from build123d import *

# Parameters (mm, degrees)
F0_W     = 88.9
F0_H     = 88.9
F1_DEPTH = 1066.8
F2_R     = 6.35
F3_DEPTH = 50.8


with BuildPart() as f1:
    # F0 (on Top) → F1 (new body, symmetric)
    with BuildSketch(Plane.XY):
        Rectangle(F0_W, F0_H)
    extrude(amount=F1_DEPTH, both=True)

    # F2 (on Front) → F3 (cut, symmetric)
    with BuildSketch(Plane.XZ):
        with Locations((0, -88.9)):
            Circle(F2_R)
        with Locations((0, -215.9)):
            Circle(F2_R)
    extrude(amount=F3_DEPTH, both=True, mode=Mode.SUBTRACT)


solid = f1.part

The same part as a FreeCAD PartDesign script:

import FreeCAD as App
import Part
import Sketcher

V = App.Vector
Q = App.Units.Quantity

doc = App.newDocument("Part")
params = doc.addObject("Spreadsheet::Sheet", "Params")
for row, (alias, value) in enumerate([
    ("sketch1_width", "3.5 in"),
    ("pad1_length", "84 in"),
    ("sketch2_diameter", "0.5 in"),
    ("pocket1_length", "4 in"),
], start=1):
    params.set(f"A{row}", alias)
    params.set(f"B{row}", "=" + value)
    params.setAlias(f"B{row}", alias)

body = doc.addObject("PartDesign::Body", "Body")

# Sketch on XY plane
sketch1 = body.newObject("Sketcher::SketchObject", "Sketch")
sketch1.AttachmentSupport = (doc.getObject("XY_Plane"), [""])
sketch1.MapMode = "FlatFace"
sketch1.addGeometry([
    Part.LineSegment(V(-44, 44, 0), V(-44, -44, 0)),
    Part.LineSegment(V(-44, -44, 0), V(44, -44, 0)),
    Part.LineSegment(V(44, -44, 0), V(44, 44, 0)),
    Part.LineSegment(V(44, 44, 0), V(-44, 44, 0)),
], False)
sketch1.addConstraint([
    Sketcher.Constraint("Coincident", 0, 2, 1, 1),
    Sketcher.Constraint("Coincident", 1, 2, 2, 1),
    Sketcher.Constraint("Coincident", 2, 2, 3, 1),
    Sketcher.Constraint("Coincident", 3, 2, 0, 1),
    Sketcher.Constraint("Vertical", 0),
    Sketcher.Constraint("Horizontal", 1),
    Sketcher.Constraint("Vertical", 2),
    Sketcher.Constraint("Horizontal", 3),
    Sketcher.Constraint("Symmetric", 0, 2, 2, 2, -1, 1),
    Sketcher.Constraint("Equal", 3, 0),
    Sketcher.Constraint("DistanceX", 1, 1, 1, 2, Q("3.5 in")),
])
sketch1.setExpression("Constraints[10]", "Params.sketch1_width")
pad1 = body.newObject("PartDesign::Pad", "Pad")
pad1.Profile = sketch1
pad1.setExpression("Length", "Params.pad1_length")
pad1.Midplane = True

# Sketch on XZ plane
sketch2 = body.newObject("Sketcher::SketchObject", "Sketch001")
sketch2.AttachmentSupport = (doc.getObject("XZ_Plane"), [""])
sketch2.MapMode = "FlatFace"
sketch2.addGeometry([
    Part.Circle(V(0, -89, 0), V(0, 0, 1), 6),
    Part.Circle(V(0, -216, 0), V(0, 0, 1), 6),
], False)
sketch2.addConstraint([
    Sketcher.Constraint("Equal", 0, 1),
    Sketcher.Constraint("PointOnObject", 0, 3, -2),
    Sketcher.Constraint("PointOnObject", 1, 3, -2),
    Sketcher.Constraint("Diameter", 0, Q("0.5 in")),
    Sketcher.Constraint("DistanceY", 1, 3, 0, 3, Q("5 in")),
    Sketcher.Constraint("DistanceY", 0, 3, -1, 1, Q("3.5 in")),
])
sketch2.setExpression("Constraints[3]", "Params.sketch2_diameter")
pocket1 = body.newObject("PartDesign::Pocket", "Pocket")
pocket1.Profile = sketch2
pocket1.setExpression("Length", "Params.pocket1_length")
pocket1.Midplane = True

doc.recompute()
